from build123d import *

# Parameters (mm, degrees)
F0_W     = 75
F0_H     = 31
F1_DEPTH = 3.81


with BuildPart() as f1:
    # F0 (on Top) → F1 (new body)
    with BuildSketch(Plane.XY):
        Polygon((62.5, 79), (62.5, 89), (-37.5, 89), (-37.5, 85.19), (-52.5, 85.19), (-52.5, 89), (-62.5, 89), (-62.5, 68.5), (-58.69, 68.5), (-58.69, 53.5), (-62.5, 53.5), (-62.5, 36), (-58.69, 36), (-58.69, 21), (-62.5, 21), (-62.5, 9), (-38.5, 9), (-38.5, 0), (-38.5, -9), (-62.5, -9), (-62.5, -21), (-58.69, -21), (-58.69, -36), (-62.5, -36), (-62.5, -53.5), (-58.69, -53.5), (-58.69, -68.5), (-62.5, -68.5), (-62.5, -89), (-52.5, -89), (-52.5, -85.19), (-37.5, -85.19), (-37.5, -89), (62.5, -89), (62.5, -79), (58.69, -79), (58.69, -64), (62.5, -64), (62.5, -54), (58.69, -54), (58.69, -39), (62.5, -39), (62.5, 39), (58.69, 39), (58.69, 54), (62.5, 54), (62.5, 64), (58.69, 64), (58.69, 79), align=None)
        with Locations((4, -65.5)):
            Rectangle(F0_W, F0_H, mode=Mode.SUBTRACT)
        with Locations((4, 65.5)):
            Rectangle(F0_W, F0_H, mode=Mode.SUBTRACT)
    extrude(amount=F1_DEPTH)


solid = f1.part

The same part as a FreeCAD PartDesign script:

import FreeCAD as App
import Part
import Sketcher
from FreeCAD import Vector


def add_polygon(sketch, points):
    """Adds a closed chain of lines whose ends are joined by coincident constraints."""
    first, n = sketch.GeometryCount, len(points)
    for a, b in zip(points, points[1:] + points[:1]):
        sketch.addGeometry(Part.LineSegment(App.Vector(*a, 0), App.Vector(*b, 0)), False)
    for i in range(n):
        sketch.addConstraint(Sketcher.Constraint("Coincident", first + i, 2, first + (i + 1) % n, 1))

doc = App.newDocument("Part")
params = doc.addObject("Spreadsheet::Sheet", "Params")
for row, (alias, value) in enumerate([
    ("sketch1_width", "100 mm"),
    ("sketch1_width2", "15 mm"),
    ("sketch1_width3", "10 mm"),
    ("sketch1_width4", "24 mm"),
    ("sketch1_width5", "75 mm"),
    ("pad1_length", "3.81 mm"),
], start=1):
    params.set(f"A{row}", alias)
    params.set(f"B{row}", "=" + value)
    params.setAlias(f"B{row}", alias)

body = doc.addObject("PartDesign::Body", "Body")

# Sketch on XY plane
sketch1 = body.newObject("Sketcher::SketchObject", "Sketch")
sketch1.AttachmentSupport = (doc.getObject("XY_Plane"), [""])
sketch1.MapMode = "FlatFace"
add_polygon(sketch1, [(62.5, 79), (62.5, 89), (-37.5, 89), (-37.5, 85.2), (-52.5, 85.2), (-52.5, 89), (-62.5, 89), (-62.5, 68.5), (-58.7, 68.5), (-58.7, 53.5), (-62.5, 53.5), (-62.5, 36), (-58.7, 36), (-58.7, 21), (-62.5, 21), (-62.5, 9), (-38.5, 9), (-38.5, -9), (-62.5, -9), (-62.5, -21), (-58.7, -21), (-58.7, -36), (-62.5, -36), (-62.5, -53.5), (-58.7, -53.5), (-58.7, -68.5), (-62.5, -68.5), (-62.5, -89), (-52.5, -89), (-52.5, -85.2), (-37.5, -85.2), (-37.5, -89), (62.5, -89), (62.5, -79), (58.7, -79), (58.7, -64), (62.5, -64), (62.5, -54), (58.7, -54), (58.7, -39), (62.5, -39), (62.5, 39), (58.7, 39), (58.7, 54), (62.5, 54), (62.5, 64), (58.7, 64), (58.7, 79)])  # lines 0-47
add_polygon(sketch1, [(41.5, -81), (-33.5, -81), (-33.5, -50), (41.5, -50)])  # lines 48-51
add_polygon(sketch1, [(41.5, 50), (-33.5, 50), (-33.5, 81), (41.5, 81)])  # lines 52-55
sketch1.addConstraint(Sketcher.Constraint("Vertical", 0))
sketch1.addConstraint(Sketcher.Constraint("Horizontal", 1))
sketch1.addConstraint(Sketcher.Constraint("Vertical", 2))
sketch1.addConstraint(Sketcher.Constraint("Horizontal", 3))
sketch1.addConstraint(Sketcher.Constraint("Vertical", 4))
sketch1.addConstraint(Sketcher.Constraint("Horizontal", 5))
sketch1.addConstraint(Sketcher.Constraint("Vertical", 6))
sketch1.addConstraint(Sketcher.Constraint("Horizontal", 7))
sketch1.addConstraint(Sketcher.Constraint("Vertical", 8))
sketch1.addConstraint(Sketcher.Constraint("Horizontal", 9))
sketch1.addConstraint(Sketcher.Constraint("Vertical", 10))
sketch1.addConstraint(Sketcher.Constraint("Horizontal", 11))
sketch1.addConstraint(Sketcher.Constraint("Vertical", 12))
sketch1.addConstraint(Sketcher.Constraint("Horizontal", 13))
sketch1.addConstraint(Sketcher.Constraint("Vertical", 14))
sketch1.addConstraint(Sketcher.Constraint("Horizontal", 15))
sketch1.addConstraint(Sketcher.Constraint("Vertical", 16))
sketch1.addConstraint(Sketcher.Constraint("Horizontal", 17))
sketch1.addConstraint(Sketcher.Constraint("Vertical", 18))
sketch1.addConstraint(Sketcher.Constraint("Horizontal", 19))
sketch1.addConstraint(Sketcher.Constraint("Vertical", 20))
sketch1.addConstraint(Sketcher.Constraint("Horizontal", 21))
sketch1.addConstraint(Sketcher.Constraint("Vertical", 22))
sketch1.addConstraint(Sketcher.Constraint("Horizontal", 23))
sketch1.addConstraint(Sketcher.Constraint("Vertical", 24))
sketch1.addConstraint(Sketcher.Constraint("Horizontal", 25))
sketch1.addConstraint(Sketcher.Constraint("Vertical", 26))
sketch1.addConstraint(Sketcher.Constraint("Horizontal", 27))
sketch1.addConstraint(Sketcher.Constraint("Vertical", 28))
sketch1.addConstraint(Sketcher.Constraint("Horizontal", 29))
sketch1.addConstraint(Sketcher.Constraint("Vertical", 30))
sketch1.addConstraint(Sketcher.Constraint("Horizontal", 31))
sketch1.addConstraint(Sketcher.Constraint("Vertical", 32))
sketch1.addConstraint(Sketcher.Constraint("Horizontal", 33))
sketch1.addConstraint(Sketcher.Constraint("Vertical", 34))
sketch1.addConstraint(Sketcher.Constraint("Horizontal", 35))
sketch1.addConstraint(Sketcher.Constraint("Vertical", 36))
sketch1.addConstraint(Sketcher.Constraint("Horizontal", 37))
sketch1.addConstraint(Sketcher.Constraint("Vertical", 38))
sketch1.addConstraint(Sketcher.Constraint("Horizontal", 39))
sketch1.addConstraint(Sketcher.Constraint("Vertical", 40))
sketch1.addConstraint(Sketcher.Constraint("Horizontal", 41))
sketch1.addConstraint(Sketcher.Constraint("Vertical", 42))
sketch1.addConstraint(Sketcher.Constraint("Horizontal", 43))
sketch1.addConstraint(Sketcher.Constraint("Vertical", 44))
sketch1.addConstraint(Sketcher.Constraint("Horizontal", 45))
sketch1.addConstraint(Sketcher.Constraint("Vertical", 46))
sketch1.addConstraint(Sketcher.Constraint("Horizontal", 47))
sketch1.addConstraint(Sketcher.Constraint("Horizontal", 48))
sketch1.addConstraint(Sketcher.Constraint("Vertical", 49))
sketch1.addConstraint(Sketcher.Constraint("Horizontal", 50))
sketch1.addConstraint(Sketcher.Constraint("Vertical", 51))
sketch1.addConstraint(Sketcher.Constraint("Horizontal", 52))
sketch1.addConstraint(Sketcher.Constraint("Vertical", 53))
sketch1.addConstraint(Sketcher.Constraint("Horizontal", 54))
sketch1.addConstraint(Sketcher.Constraint("Vertical", 55))
sketch1.addConstraint(Sketcher.Constraint("Symmetric", 0, 2, 26, 2, -1, 1))
sketch1.addConstraint(Sketcher.Constraint("Symmetric", 5, 2, 31, 2, -1, 1))
sketch1.addConstraint(Sketcher.Constraint("Symmetric", 0, 2, 5, 2, -2))
sketch1.addConstraint(Sketcher.Constraint("Symmetric", 14, 2, 17, 2, -1))
sketch1.addConstraint(Sketcher.Constraint("Symmetric", 12, 2, 19, 2, -1))
sketch1.addConstraint(Sketcher.Constraint("Symmetric", 10, 2, 21, 2, -1))
sketch1.addConstraint(Sketcher.Constraint("Symmetric", 8, 2, 23, 2, -1))
sketch1.addConstraint(Sketcher.Constraint("Symmetric", 3, 2, 28, 2, -1))
sketch1.addConstraint(Sketcher.Constraint("Symmetric", 38, 2, 41, 2, -1))
sketch1.addConstraint(Sketcher.Constraint("Symmetric", 36, 2, 43, 2, -1))
sketch1.addConstraint(Sketcher.Constraint("Symmetric", 34, 2, 45, 2, -1))
sketch1.addConstraint(Sketcher.Constraint("Symmetric", 49, 2, 52, 2, -1))
sketch1.addConstraint(Sketcher.Constraint("Symmetric", 51, 2, 54, 2, -1))
sketch1.addConstraint(Sketcher.Constraint("Vertical", 6, 2, 9, 2))
sketch1.addConstraint(Sketcher.Constraint("Vertical", 8, 2, 11, 2))
sketch1.addConstraint(Sketcher.Constraint("Vertical", 10, 2, 13, 2))
sketch1.addConstraint(Sketcher.Constraint("Vertical", 2, 2, 29, 2))
sketch1.addConstraint(Sketcher.Constraint("Vertical", 32, 2, 35, 2))
sketch1.addConstraint(Sketcher.Constraint("Vertical", 34, 2, 37, 2))
sketch1.addConstraint(Sketcher.Constraint("Vertical", 36, 2, 39, 2))
sketch1.addConstraint(Sketcher.Constraint("Equal", 25, 33))
sketch1.addConstraint(Sketcher.Constraint("Equal", 27, 0))
sketch1.addConstraint(Sketcher.Constraint("Equal", 47, 2))
sketch1.addConstraint(Sketcher.Constraint("Equal", 29, 8))
sketch1.addConstraint(Sketcher.Constraint("Equal", 8, 12))
sketch1.addConstraint(Sketcher.Constraint("Equal", 20, 24))
sketch1.addConstraint(Sketcher.Constraint("Equal", 0, 32))
sketch1.addConstraint(Sketcher.Constraint("Equal", 24, 34))
sketch1.addConstraint(Sketcher.Constraint("Equal", 32, 36))
sketch1.addConstraint(Sketcher.Constraint("Equal", 34, 38))
sketch1.addConstraint(Sketcher.Constraint("DistanceX", 1, 2, 1, 1, 100.0))
sketch1.addConstraint(Sketcher.Constraint("DistanceX", 3, 2, 3, 1, 15.0))
sketch1.addConstraint(Sketcher.Constraint("DistanceX", 5, 2, 5, 1, 10.0))
sketch1.addConstraint(Sketcher.Constraint("DistanceX", 15, 1, 15, 2, 24.0))
sketch1.addConstraint(Sketcher.Constraint("DistanceX", 48, 2, 48, 1, 75.0))
sketch1.addConstraint(Sketcher.Constraint("DistanceY", 14, 2, 14, 1, 12.0))
sketch1.addConstraint(Sketcher.Constraint("DistanceY", 16, 2, 16, 1, 18.0))
sketch1.addConstraint(Sketcher.Constraint("DistanceY", 40, 1, 40, 2, 78.0))
sketch1.addConstraint(Sketcher.Constraint("DistanceY", 49, 1, 49, 2, 31.0))
sketch1.addConstraint(Sketcher.Constraint("DistanceY", 6, 2, 6, 1, 20.5))
sketch1.addConstraint(Sketcher.Constraint("DistanceY", 48, 2, -1, 1, 81.0))
sketch1.addConstraint(Sketcher.Constraint("DistanceX", 29, 2, 48, 2, 4.0))
sketch1.addConstraint(Sketcher.Constraint("DistanceX", 7, 1, 7, 2, 3.81))
sketch1.setExpression("Constraints[142]", "Params.sketch1_width")
sketch1.setExpression("Constraints[143]", "Params.sketch1_width2")
sketch1.setExpression("Constraints[144]", "Params.sketch1_width3")
sketch1.setExpression("Constraints[145]", "Params.sketch1_width4")
sketch1.setExpression("Constraints[146]", "Params.sketch1_width5")
pad1 = body.newObject("PartDesign::Pad", "Pad")
pad1.Profile = sketch1
pad1.setExpression("Length", "Params.pad1_length")

doc.recompute()
